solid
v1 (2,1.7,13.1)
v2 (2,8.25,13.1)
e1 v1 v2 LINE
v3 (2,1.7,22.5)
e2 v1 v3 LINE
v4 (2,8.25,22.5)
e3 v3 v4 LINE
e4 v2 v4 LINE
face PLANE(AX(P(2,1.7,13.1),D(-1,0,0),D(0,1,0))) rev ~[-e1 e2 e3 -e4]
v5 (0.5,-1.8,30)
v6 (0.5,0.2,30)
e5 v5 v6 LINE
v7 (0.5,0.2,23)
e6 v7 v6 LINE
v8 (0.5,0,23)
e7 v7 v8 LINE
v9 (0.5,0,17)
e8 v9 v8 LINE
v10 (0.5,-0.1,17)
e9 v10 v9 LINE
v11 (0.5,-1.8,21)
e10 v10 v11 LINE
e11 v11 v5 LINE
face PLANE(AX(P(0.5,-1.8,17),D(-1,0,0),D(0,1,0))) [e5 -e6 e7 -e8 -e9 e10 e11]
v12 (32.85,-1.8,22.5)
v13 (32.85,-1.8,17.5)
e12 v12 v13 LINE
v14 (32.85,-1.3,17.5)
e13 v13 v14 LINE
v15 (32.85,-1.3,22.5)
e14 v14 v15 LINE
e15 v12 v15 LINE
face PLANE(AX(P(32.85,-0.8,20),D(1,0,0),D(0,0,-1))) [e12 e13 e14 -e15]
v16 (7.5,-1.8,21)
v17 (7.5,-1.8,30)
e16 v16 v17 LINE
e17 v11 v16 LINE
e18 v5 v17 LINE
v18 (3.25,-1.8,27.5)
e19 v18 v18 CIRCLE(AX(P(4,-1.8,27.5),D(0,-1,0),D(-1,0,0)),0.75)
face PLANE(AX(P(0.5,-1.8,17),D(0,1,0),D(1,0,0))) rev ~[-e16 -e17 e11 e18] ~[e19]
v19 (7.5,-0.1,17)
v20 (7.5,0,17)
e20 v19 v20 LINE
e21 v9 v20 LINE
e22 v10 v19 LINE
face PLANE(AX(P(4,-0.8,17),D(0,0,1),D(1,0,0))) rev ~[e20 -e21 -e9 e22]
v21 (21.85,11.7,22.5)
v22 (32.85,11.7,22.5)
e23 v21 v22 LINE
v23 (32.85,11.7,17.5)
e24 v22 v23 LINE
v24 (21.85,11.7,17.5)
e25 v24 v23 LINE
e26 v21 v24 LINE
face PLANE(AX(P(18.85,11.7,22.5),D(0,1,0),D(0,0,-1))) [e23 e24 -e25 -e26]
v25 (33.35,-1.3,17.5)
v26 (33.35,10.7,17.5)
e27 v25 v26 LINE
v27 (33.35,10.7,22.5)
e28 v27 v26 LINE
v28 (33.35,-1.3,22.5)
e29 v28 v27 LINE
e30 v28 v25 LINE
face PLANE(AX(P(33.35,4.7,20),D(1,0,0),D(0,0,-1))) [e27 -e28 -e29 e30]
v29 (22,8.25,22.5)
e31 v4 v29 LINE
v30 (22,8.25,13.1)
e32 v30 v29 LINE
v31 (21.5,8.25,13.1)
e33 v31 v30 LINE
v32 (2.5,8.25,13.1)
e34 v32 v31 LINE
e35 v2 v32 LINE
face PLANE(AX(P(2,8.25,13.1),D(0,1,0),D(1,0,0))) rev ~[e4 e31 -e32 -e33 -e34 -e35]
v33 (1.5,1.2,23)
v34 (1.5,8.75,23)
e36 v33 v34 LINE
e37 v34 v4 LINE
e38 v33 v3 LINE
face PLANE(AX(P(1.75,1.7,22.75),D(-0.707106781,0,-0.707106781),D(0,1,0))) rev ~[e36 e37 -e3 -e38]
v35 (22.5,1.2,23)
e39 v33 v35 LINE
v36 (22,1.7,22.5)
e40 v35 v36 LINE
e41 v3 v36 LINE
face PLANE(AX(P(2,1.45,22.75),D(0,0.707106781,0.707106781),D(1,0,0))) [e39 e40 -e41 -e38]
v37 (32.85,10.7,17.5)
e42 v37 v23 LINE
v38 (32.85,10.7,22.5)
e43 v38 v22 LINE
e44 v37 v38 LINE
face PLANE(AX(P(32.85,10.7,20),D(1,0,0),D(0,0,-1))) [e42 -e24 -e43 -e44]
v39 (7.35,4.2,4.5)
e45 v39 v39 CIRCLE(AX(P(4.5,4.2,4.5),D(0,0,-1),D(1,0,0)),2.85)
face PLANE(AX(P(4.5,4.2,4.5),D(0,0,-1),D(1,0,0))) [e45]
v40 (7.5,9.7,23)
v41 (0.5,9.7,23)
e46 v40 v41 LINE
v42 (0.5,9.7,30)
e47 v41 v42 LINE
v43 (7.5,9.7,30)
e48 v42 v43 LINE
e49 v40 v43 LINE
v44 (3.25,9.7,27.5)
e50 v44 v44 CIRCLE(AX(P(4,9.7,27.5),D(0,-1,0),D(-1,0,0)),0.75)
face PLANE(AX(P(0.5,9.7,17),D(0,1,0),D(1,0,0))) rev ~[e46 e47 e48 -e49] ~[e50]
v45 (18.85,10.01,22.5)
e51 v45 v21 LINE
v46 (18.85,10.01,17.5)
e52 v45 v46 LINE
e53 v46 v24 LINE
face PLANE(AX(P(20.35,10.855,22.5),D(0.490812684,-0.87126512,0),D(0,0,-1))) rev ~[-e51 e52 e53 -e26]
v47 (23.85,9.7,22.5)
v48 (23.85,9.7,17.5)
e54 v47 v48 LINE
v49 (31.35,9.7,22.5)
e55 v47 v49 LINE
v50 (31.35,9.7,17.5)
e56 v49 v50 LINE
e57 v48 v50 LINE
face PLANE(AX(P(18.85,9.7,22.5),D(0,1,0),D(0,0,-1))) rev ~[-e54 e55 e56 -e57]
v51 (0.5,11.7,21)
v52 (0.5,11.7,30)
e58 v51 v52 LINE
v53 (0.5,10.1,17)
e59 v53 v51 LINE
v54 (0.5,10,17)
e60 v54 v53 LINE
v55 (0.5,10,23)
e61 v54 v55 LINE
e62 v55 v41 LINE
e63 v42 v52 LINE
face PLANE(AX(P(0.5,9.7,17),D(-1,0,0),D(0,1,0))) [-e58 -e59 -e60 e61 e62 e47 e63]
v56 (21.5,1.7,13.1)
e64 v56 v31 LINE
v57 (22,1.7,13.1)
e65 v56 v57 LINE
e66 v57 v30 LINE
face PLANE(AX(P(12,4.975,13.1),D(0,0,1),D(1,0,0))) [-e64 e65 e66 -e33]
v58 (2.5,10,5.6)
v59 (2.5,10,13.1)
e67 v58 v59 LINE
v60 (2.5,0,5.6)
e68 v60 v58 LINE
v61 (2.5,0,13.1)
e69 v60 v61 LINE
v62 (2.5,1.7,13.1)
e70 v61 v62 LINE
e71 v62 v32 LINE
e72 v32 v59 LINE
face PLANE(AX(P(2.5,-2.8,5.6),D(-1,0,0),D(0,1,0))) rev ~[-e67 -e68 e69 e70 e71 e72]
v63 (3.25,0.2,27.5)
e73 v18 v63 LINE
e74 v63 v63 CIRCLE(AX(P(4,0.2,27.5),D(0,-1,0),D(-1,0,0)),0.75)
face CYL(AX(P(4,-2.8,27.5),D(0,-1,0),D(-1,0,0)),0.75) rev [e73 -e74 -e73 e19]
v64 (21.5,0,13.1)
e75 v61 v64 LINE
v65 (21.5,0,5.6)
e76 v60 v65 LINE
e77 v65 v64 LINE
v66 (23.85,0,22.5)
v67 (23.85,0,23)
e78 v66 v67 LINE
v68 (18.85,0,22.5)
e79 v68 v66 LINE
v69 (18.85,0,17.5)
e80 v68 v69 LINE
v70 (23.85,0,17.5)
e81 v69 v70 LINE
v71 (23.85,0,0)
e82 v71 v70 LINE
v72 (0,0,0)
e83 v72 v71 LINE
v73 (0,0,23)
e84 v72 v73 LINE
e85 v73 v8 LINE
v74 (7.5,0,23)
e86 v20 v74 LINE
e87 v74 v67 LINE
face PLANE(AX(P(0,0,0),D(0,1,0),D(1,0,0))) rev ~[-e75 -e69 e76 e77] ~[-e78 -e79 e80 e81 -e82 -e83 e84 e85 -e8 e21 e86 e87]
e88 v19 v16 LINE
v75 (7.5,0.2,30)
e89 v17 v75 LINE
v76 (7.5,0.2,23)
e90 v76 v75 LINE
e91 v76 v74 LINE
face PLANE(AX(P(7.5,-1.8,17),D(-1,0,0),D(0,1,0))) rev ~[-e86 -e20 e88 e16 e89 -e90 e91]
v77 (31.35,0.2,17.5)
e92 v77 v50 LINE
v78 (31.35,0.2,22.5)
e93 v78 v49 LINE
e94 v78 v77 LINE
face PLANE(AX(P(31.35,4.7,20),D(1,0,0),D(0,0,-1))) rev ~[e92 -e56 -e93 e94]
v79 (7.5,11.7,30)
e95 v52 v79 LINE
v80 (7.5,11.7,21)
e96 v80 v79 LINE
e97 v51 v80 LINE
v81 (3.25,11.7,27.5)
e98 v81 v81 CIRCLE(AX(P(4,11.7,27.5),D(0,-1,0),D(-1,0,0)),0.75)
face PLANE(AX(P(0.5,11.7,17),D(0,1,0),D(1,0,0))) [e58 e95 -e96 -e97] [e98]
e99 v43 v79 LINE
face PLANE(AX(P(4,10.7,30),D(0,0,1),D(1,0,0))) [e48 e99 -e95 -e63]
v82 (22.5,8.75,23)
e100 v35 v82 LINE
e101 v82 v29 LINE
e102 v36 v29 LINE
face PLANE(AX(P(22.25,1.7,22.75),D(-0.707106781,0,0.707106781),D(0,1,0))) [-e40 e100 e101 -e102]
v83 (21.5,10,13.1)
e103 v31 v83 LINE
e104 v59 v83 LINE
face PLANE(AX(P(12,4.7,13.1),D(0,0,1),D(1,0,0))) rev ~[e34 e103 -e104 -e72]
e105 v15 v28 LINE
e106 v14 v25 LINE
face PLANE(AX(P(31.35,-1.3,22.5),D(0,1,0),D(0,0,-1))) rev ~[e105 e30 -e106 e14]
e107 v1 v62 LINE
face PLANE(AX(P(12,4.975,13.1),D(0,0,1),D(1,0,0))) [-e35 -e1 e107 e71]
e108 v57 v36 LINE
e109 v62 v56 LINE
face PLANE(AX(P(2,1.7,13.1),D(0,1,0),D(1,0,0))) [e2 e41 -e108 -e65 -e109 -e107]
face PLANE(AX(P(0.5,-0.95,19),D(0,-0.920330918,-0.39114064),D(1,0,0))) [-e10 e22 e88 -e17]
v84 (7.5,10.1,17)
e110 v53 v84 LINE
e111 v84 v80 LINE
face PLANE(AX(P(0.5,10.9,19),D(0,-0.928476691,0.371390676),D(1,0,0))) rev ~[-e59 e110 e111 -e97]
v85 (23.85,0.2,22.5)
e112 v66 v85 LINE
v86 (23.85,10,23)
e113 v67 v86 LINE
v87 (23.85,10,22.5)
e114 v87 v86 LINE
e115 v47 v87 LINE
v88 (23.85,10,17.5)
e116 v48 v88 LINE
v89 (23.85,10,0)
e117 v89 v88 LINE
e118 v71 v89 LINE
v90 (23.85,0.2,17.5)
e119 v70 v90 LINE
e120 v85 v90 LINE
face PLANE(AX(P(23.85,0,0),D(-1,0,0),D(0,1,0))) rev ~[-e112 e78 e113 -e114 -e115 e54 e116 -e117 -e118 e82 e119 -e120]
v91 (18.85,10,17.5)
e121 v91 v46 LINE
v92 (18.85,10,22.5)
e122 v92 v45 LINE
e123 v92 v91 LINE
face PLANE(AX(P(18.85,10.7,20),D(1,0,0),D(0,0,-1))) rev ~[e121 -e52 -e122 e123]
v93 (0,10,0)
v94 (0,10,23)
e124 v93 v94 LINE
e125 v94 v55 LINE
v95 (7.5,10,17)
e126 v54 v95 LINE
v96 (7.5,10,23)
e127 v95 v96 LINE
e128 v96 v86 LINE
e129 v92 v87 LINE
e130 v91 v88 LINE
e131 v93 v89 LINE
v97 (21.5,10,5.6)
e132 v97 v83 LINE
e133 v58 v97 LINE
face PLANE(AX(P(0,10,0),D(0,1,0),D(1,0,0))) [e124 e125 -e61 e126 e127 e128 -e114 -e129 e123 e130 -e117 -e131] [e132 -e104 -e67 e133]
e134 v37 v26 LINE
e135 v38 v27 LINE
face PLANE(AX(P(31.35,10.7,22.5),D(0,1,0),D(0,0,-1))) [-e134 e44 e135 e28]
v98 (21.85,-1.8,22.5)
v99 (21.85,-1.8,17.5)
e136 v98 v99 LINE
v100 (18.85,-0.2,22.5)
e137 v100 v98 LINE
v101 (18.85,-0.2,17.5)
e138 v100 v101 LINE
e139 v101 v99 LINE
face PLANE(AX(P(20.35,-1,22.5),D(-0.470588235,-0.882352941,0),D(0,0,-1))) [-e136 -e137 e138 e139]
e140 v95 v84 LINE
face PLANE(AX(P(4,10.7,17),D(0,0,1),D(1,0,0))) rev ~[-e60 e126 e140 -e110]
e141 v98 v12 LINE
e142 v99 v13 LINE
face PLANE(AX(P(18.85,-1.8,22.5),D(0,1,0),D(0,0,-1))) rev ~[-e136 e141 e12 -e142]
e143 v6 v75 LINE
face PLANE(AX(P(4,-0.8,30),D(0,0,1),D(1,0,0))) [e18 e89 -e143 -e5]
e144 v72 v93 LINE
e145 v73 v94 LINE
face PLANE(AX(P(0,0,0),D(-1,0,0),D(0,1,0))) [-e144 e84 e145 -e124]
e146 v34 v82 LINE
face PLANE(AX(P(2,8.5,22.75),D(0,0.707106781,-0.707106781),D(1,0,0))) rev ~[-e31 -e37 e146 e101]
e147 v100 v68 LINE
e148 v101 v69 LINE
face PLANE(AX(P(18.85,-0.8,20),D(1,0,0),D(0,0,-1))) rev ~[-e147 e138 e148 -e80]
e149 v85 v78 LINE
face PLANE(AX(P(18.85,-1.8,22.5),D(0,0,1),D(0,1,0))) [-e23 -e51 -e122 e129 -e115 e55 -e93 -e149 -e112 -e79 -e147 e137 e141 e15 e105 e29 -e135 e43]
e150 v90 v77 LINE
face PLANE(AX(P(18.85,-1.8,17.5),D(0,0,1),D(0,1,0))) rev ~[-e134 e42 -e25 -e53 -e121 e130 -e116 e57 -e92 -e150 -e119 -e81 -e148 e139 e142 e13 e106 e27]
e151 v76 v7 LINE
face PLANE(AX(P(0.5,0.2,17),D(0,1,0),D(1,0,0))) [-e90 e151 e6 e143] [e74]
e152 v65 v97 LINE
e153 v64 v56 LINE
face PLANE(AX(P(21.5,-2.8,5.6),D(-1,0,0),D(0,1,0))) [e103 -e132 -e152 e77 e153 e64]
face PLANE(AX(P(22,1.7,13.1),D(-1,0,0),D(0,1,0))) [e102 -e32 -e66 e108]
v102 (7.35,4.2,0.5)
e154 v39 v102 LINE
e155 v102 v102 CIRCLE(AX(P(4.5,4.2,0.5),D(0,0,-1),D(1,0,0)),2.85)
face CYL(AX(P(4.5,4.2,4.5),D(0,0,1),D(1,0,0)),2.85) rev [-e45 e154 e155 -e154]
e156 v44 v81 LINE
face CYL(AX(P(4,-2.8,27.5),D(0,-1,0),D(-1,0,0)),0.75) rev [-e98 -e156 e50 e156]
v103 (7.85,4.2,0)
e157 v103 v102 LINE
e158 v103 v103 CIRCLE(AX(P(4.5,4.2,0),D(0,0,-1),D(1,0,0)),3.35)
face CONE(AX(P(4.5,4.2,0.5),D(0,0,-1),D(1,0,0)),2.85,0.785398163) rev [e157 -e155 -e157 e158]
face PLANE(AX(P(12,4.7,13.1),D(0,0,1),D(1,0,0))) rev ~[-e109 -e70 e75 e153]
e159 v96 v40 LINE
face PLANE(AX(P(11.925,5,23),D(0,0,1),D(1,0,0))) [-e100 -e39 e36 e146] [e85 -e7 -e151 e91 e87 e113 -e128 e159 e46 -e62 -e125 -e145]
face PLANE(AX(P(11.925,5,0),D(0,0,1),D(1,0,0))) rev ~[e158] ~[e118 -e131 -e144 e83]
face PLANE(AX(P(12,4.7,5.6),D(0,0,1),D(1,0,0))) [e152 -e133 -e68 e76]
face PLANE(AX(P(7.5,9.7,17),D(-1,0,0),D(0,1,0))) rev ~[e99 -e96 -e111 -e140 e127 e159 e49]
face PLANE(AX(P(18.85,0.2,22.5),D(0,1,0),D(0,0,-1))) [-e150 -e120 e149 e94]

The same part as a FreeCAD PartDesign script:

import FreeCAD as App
import Part
import Sketcher


def edges_at(feature, points):
    """Names of the edges that pass closest to the given points."""
    edges = feature.Shape.Edges
    near = lambda p: min(range(len(edges)), key=lambda i: edges[i].distToShape(Part.Vertex(*p))[0])
    return sorted({f"Edge{near(p) + 1}" for p in points})

doc = App.newDocument("Part")
body = doc.addObject("PartDesign::Body", "Body")

# Sketch on XY plane
sketch1 = body.newObject("Sketcher::SketchObject", "Sketch")
sketch1.AttachmentSupport = (doc.getObject("XY_Plane"), [""])
sketch1.MapMode = "FlatFace"
sketch1.addGeometry([
    Part.LineSegment(App.Vector(0, 10, 0), App.Vector(0, 0, 0)),
    Part.LineSegment(App.Vector(0, 0, 0), App.Vector(24, 0, 0)),
    Part.LineSegment(App.Vector(24, 0, 0), App.Vector(24, 10, 0)),
    Part.LineSegment(App.Vector(24, 10, 0), App.Vector(0, 10, 0)),
], False)
sketch1.addConstraint([
    Sketcher.Constraint("Coincident", 0, 2, 1, 1),
    Sketcher.Constraint("Coincident", 1, 2, 2, 1),
    Sketcher.Constraint("Coincident", 2, 2, 3, 1),
    Sketcher.Constraint("Coincident", 3, 2, 0, 1),
    Sketcher.Constraint("Vertical", 0),
    Sketcher.Constraint("Horizontal", 1),
    Sketcher.Constraint("Vertical", 2),
    Sketcher.Constraint("Horizontal", 3),
    Sketcher.Constraint("Coincident", 0, 2, -1, 1),
    Sketcher.Constraint("DistanceY", 0, 2, 0, 1, 10.0),
    Sketcher.Constraint("DistanceX", 1, 1, 1, 2, 23.85),
])
pad1 = body.newObject("PartDesign::Pad", "Pad")
pad1.Profile = sketch1
pad1.Length = 23

# Sketch on XY plane
sketch2 = body.newObject("Sketcher::SketchObject", "Sketch001")
sketch2.AttachmentSupport = (doc.getObject("XY_Plane"), [""])
sketch2.MapMode = "FlatFace"
sketch2.AttachmentOffset = App.Placement(App.Vector(0, 0, 13.1), App.Rotation())
sketch2.addGeometry([
    Part.LineSegment(App.Vector(2, 8, 0), App.Vector(2, 2, 0)),
    Part.LineSegment(App.Vector(2, 2, 0), App.Vector(22, 2, 0)),
    Part.LineSegment(App.Vector(22, 2, 0), App.Vector(22, 8, 0)),
    Part.LineSegment(App.Vector(22, 8, 0), App.Vector(2, 8, 0)),
], False)
sketch2.addConstraint([
    Sketcher.Constraint("Coincident", 0, 2, 1, 1),
    Sketcher.Constraint("Coincident", 1, 2, 2, 1),
    Sketcher.Constraint("Coincident", 2, 2, 3, 1),
    Sketcher.Constraint("Coincident", 3, 2, 0, 1),
    Sketcher.Constraint("Vertical", 0),
    Sketcher.Constraint("Horizontal", 1),
    Sketcher.Constraint("Vertical", 2),
    Sketcher.Constraint("Horizontal", 3),
    Sketcher.Constraint("DistanceX", 1, 1, 1, 2, 20.0),
    Sketcher.Constraint("DistanceX", -1, 1, 0, 2, 2.0),
    Sketcher.Constraint("DistanceY", 0, 2, 0, 1, 6.55),
    Sketcher.Constraint("DistanceY", -1, 1, 0, 2, 1.7),
])
pocket1 = body.newObject("PartDesign::Pocket", "Pocket")
pocket1.Profile = sketch2
pocket1.Length = 9.9
pocket1.Reversed = True

# Sketch on XY plane
sketch3 = body.newObject("Sketcher::SketchObject", "Sketch002")
sketch3.AttachmentSupport = (doc.getObject("XY_Plane"), [""])
sketch3.MapMode = "FlatFace"
sketch3.AttachmentOffset = App.Placement(App.Vector(0, 0, 5.6), App.Rotation())
sketch3.addGeometry([
    Part.LineSegment(App.Vector(2, 12, 0), App.Vector(2, -3, 0)),
    Part.LineSegment(App.Vector(2, -3, 0), App.Vector(22, -3, 0)),
    Part.LineSegment(App.Vector(22, -3, 0), App.Vector(22, 12, 0)),
    Part.LineSegment(App.Vector(22, 12, 0), App.Vector(2, 12, 0)),
], False)
sketch3.addConstraint([
    Sketcher.Constraint("Coincident", 0, 2, 1, 1),
    Sketcher.Constraint("Coincident", 1, 2, 2, 1),
    Sketcher.Constraint("Coincident", 2, 2, 3, 1),
    Sketcher.Constraint("Coincident", 3, 2, 0, 1),
    Sketcher.Constraint("Vertical", 0),
    Sketcher.Constraint("Horizontal", 1),
    Sketcher.Constraint("Vertical", 2),
    Sketcher.Constraint("Horizontal", 3),
    Sketcher.Constraint("DistanceX", 1, 1, 1, 2, 19.0),
    Sketcher.Constraint("DistanceY", 0, 2, 0, 1, 15.0),
    Sketcher.Constraint("DistanceX", -1, 1, 0, 2, 2.5),
    Sketcher.Constraint("DistanceY", 0, 2, -1, 1, 2.8),
])
pocket2 = body.newObject("PartDesign::Pocket", "Pocket001")
pocket2.Profile = sketch3
pocket2.Length = 7.5
pocket2.Reversed = True
doc.recompute()

chamfer = body.newObject("PartDesign::Chamfer", "Chamfer")
chamfer.Base = (pocket2, edges_at(pocket2, [
    (12, 8.25, 23),
    (22, 4.975, 23),
    (12, 1.7, 23),
    (2, 4.975, 23),
]))
chamfer.Size = 0.5

# Sketch on XY plane
sketch4 = body.newObject("Sketcher::SketchObject", "Sketch003")
sketch4.AttachmentSupport = (doc.getObject("XY_Plane"), [""])
sketch4.MapMode = "FlatFace"
sketch4.AttachmentOffset = App.Placement(App.Vector(0, 0, 4.5), App.Rotation())
sketch4.addGeometry(Part.Circle(App.Vector(4.5, 4.2, 0), App.Vector(0, 0, 1), 2.9), False)
sketch4.addConstraint([
    Sketcher.Constraint("Diameter", 0, 5.7),
    Sketcher.Constraint("DistanceX", -1, 1, 0, 3, 4.5),
    Sketcher.Constraint("DistanceY", -1, 1, 0, 3, 4.2),
])
pocket3 = body.newObject("PartDesign::Pocket", "Pocket002")
pocket3.Profile = sketch4
pocket3.Length = 4.5
doc.recompute()

chamfer2 = body.newObject("PartDesign::Chamfer", "Chamfer001")
chamfer2.Base = (pocket3, edges_at(pocket3, [(1.65, 4.2, 0)]))
chamfer2.Size = 0.5

# Sketch on XY plane
sketch5 = body.newObject("Sketcher::SketchObject", "Sketch004")
sketch5.AttachmentSupport = (doc.getObject("XY_Plane"), [""])
sketch5.MapMode = "FlatFace"
sketch5.AttachmentOffset = App.Placement(App.Vector(0, 0, 17), App.Rotation())
sketch5.addGeometry([
    Part.LineSegment(App.Vector(0.5, 0.2, 0), App.Vector(0.5, -1.8, 0)),
    Part.LineSegment(App.Vector(0.5, -1.8, 0), App.Vector(7.5, -1.8, 0)),
    Part.LineSegment(App.Vector(7.5, -1.8, 0), App.Vector(7.5, 0.2, 0)),
    Part.LineSegment(App.Vector(7.5, 0.2, 0), App.Vector(0.5, 0.2, 0)),
], False)
sketch5.addConstraint([
    Sketcher.Constraint("Coincident", 0, 2, 1, 1),
    Sketcher.Constraint("Coincident", 1, 2, 2, 1),
    Sketcher.Constraint("Coincident", 2, 2, 3, 1),
    Sketcher.Constraint("Coincident", 3, 2, 0, 1),
    Sketcher.Constraint("Vertical", 0),
    Sketcher.Constraint("Horizontal", 1),
    Sketcher.Constraint("Vertical", 2),
    Sketcher.Constraint("Horizontal", 3),
    Sketcher.Constraint("DistanceX", 1, 1, 1, 2, 7.0),
    Sketcher.Constraint("DistanceY", 0, 2, 0, 1, 2.0),
    Sketcher.Constraint("DistanceX", -1, 1, 0, 2, 0.5),
    Sketcher.Constraint("DistanceY", 0, 2, -1, 1, 1.8),
])
pad2 = body.newObject("PartDesign::Pad", "Pad001")
pad2.Profile = sketch5
pad2.Length = 13
doc.recompute()

chamfer3 = body.newObject("PartDesign::Chamfer", "Chamfer002")
chamfer3.Base = (pad2, edges_at(pad2, [(4, -1.8, 17)]))
chamfer3.ChamferType = "Two distances"
chamfer3.Size = 1.7
chamfer3.Size2 = 4

# Sketch on XY plane
sketch6 = body.newObject("Sketcher::SketchObject", "Sketch005")
sketch6.AttachmentSupport = (doc.getObject("XY_Plane"), [""])
sketch6.MapMode = "FlatFace"
sketch6.AttachmentOffset = App.Placement(App.Vector(0, 0, 17), App.Rotation())
sketch6.addGeometry([
    Part.LineSegment(App.Vector(0.5, 11.7, 0), App.Vector(0.5, 9.7, 0)),
    Part.LineSegment(App.Vector(0.5, 9.7, 0), App.Vector(7.5, 9.7, 0)),
    Part.LineSegment(App.Vector(7.5, 9.7, 0), App.Vector(7.5, 11.7, 0)),
    Part.LineSegment(App.Vector(7.5, 11.7, 0), App.Vector(0.5, 11.7, 0)),
], False)
sketch6.addConstraint([
    Sketcher.Constraint("Coincident", 0, 2, 1, 1),
    Sketcher.Constraint("Coincident", 1, 2, 2, 1),
    Sketcher.Constraint("Coincident", 2, 2, 3, 1),
    Sketcher.Constraint("Coincident", 3, 2, 0, 1),
    Sketcher.Constraint("Vertical", 0),
    Sketcher.Constraint("Horizontal", 1),
    Sketcher.Constraint("Vertical", 2),
    Sketcher.Constraint("Horizontal", 3),
    Sketcher.Constraint("DistanceX", 1, 1, 1, 2, 7.0),
    Sketcher.Constraint("DistanceY", 0, 2, 0, 1, 2.0),
    Sketcher.Constraint("DistanceX", -1, 1, 0, 2, 0.5),
    Sketcher.Constraint("DistanceY", -1, 1, 0, 2, 9.7),
])
pad3 = body.newObject("PartDesign::Pad", "Pad002")
pad3.Profile = sketch6
pad3.Length = 13

# Sketch on XZ plane
sketch7 = body.newObject("Sketcher::SketchObject", "Sketch006")
sketch7.AttachmentSupport = (doc.getObject("XZ_Plane"), [""])
sketch7.MapMode = "FlatFace"
sketch7.AttachmentOffset = App.Placement(App.Vector(0, 0, 2.8), App.Rotation())
sketch7.addGeometry(Part.Circle(App.Vector(4, 27.5, 0), App.Vector(0, 0, 1), 0.8), False)
sketch7.addConstraint([
    Sketcher.Constraint("Diameter", 0, 1.5),
    Sketcher.Constraint("DistanceX", -1, 1, 0, 3, 4.0),
    Sketcher.Constraint("DistanceY", -1, 1, 0, 3, 27.5),
])
pocket4 = body.newObject("PartDesign::Pocket", "Pocket003")
pocket4.Profile = sketch7
pocket4.Length = 15
doc.recompute()

chamfer4 = body.newObject("PartDesign::Chamfer", "Chamfer003")
chamfer4.Base = (pocket4, edges_at(pocket4, [(4, 11.7, 17)]))
chamfer4.ChamferType = "Two distances"
chamfer4.Size = 1.6
chamfer4.Size2 = 4

# Sketch on YZ plane
sketch8 = body.newObject("Sketcher::SketchObject", "Sketch007")
sketch8.AttachmentSupport = (doc.getObject("YZ_Plane"), [""])
sketch8.MapMode = "FlatFace"
sketch8.AttachmentOffset = App.Placement(App.Vector(0, 0, 18.85), App.Rotation())
sketch8.addGeometry([
    Part.LineSegment(App.Vector(0.2, 22.5, 0), App.Vector(-1.8, 22.5, 0)),
    Part.LineSegment(App.Vector(-1.8, 22.5, 0), App.Vector(-1.8, 17.5, 0)),
    Part.LineSegment(App.Vector(-1.8, 17.5, 0), App.Vector(0.2, 17.5, 0)),
    Part.LineSegment(App.Vector(0.2, 17.5, 0), App.Vector(0.2, 22.5, 0)),
], False)
sketch8.addConstraint([
    Sketcher.Constraint("Coincident", 0, 2, 1, 1),
    Sketcher.Constraint("Coincident", 1, 2, 2, 1),
    Sketcher.Constraint("Coincident", 2, 2, 3, 1),
    Sketcher.Constraint("Coincident", 3, 2, 0, 1),
    Sketcher.Constraint("Horizontal", 0),
    Sketcher.Constraint("Vertical", 1),
    Sketcher.Constraint("Horizontal", 2),
    Sketcher.Constraint("Vertical", 3),
    Sketcher.Constraint("DistanceX", 0, 2, 0, 1, 2.0),
    Sketcher.Constraint("DistanceY", 1, 2, 1, 1, 5.0),
    Sketcher.Constraint("DistanceX", 0, 2, -1, 1, 1.8),
    Sketcher.Constraint("DistanceY", -1, 1, 0, 2, 22.5),
])
pad4 = body.newObject("PartDesign::Pad", "Pad003")
pad4.Profile = sketch8
pad4.Length = 14
doc.recompute()

chamfer5 = body.newObject("PartDesign::Chamfer", "Chamfer004")
chamfer5.Base = (pad4, edges_at(pad4, [(18.85, -1.8, 20)]))
chamfer5.ChamferType = "Two distances"
chamfer5.Size = 1.6
chamfer5.Size2 = 3

# Sketch on YZ plane
sketch9 = body.newObject("Sketcher::SketchObject", "Sketch008")
sketch9.AttachmentSupport = (doc.getObject("YZ_Plane"), [""])
sketch9.MapMode = "FlatFace"
sketch9.AttachmentOffset = App.Placement(App.Vector(0, 0, 18.85), App.Rotation())
sketch9.addGeometry([
    Part.LineSegment(App.Vector(11.7, 22.5, 0), App.Vector(9.7, 22.5, 0)),
    Part.LineSegment(App.Vector(9.7, 22.5, 0), App.Vector(9.7, 17.5, 0)),
    Part.LineSegment(App.Vector(9.7, 17.5, 0), App.Vector(11.7, 17.5, 0)),
    Part.LineSegment(App.Vector(11.7, 17.5, 0), App.Vector(11.7, 22.5, 0)),
], False)
sketch9.addConstraint([
    Sketcher.Constraint("Coincident", 0, 2, 1, 1),
    Sketcher.Constraint("Coincident", 1, 2, 2, 1),
    Sketcher.Constraint("Coincident", 2, 2, 3, 1),
    Sketcher.Constraint("Coincident", 3, 2, 0, 1),
    Sketcher.Constraint("Horizontal", 0),
    Sketcher.Constraint("Vertical", 1),
    Sketcher.Constraint("Horizontal", 2),
    Sketcher.Constraint("Vertical", 3),
    Sketcher.Constraint("DistanceX", 0, 2, 0, 1, 2.0),
    Sketcher.Constraint("DistanceY", 1, 2, 1, 1, 5.0),
    Sketcher.Constraint("DistanceX", -1, 1, 0, 2, 9.7),
    Sketcher.Constraint("DistanceY", -1, 1, 0, 2, 22.5),
])
pad5 = body.newObject("PartDesign::Pad", "Pad004")
pad5.Profile = sketch9
pad5.Length = 14
doc.recompute()

chamfer6 = body.newObject("PartDesign::Chamfer", "Chamfer005")
chamfer6.Base = (pad5, edges_at(pad5, [(18.85, 11.7, 20)]))
chamfer6.ChamferType = "Two distances"
chamfer6.Size = 1.69
chamfer6.Size2 = 3

# Sketch on YZ plane
sketch10 = body.newObject("Sketcher::SketchObject", "Sketch009")
sketch10.AttachmentSupport = (doc.getObject("YZ_Plane"), [""])
sketch10.MapMode = "FlatFace"
sketch10.AttachmentOffset = App.Placement(App.Vector(0, 0, 31.35), App.Rotation())
sketch10.addGeometry([
    Part.LineSegment(App.Vector(11, 22, 0), App.Vector(-1, 22, 0)),
    Part.LineSegment(App.Vector(-1, 22, 0), App.Vector(-1, 18, 0)),
    Part.LineSegment(App.Vector(-1, 18, 0), App.Vector(11, 18, 0)),
    Part.LineSegment(App.Vector(11, 18, 0), App.Vector(11, 22, 0)),
], False)
sketch10.addConstraint([
    Sketcher.Constraint("Coincident", 0, 2, 1, 1),
    Sketcher.Constraint("Coincident", 1, 2, 2, 1),
    Sketcher.Constraint("Coincident", 2, 2, 3, 1),
    Sketcher.Constraint("Coincident", 3, 2, 0, 1),
    Sketcher.Constraint("Horizontal", 0),
    Sketcher.Constraint("Vertical", 1),
    Sketcher.Constraint("Horizontal", 2),
    Sketcher.Constraint("Vertical", 3),
    Sketcher.Constraint("DistanceX", 0, 2, 0, 1, 12.0),
    Sketcher.Constraint("DistanceY", 1, 2, 1, 1, 5.0),
    Sketcher.Constraint("DistanceX", 0, 2, -1, 1, 1.3),
    Sketcher.Constraint("DistanceY", -1, 1, 0, 2, 22.5),
])
pad6 = body.newObject("PartDesign::Pad", "Pad005")
pad6.Profile = sketch10
pad6.Length = 2

doc.recompute()
